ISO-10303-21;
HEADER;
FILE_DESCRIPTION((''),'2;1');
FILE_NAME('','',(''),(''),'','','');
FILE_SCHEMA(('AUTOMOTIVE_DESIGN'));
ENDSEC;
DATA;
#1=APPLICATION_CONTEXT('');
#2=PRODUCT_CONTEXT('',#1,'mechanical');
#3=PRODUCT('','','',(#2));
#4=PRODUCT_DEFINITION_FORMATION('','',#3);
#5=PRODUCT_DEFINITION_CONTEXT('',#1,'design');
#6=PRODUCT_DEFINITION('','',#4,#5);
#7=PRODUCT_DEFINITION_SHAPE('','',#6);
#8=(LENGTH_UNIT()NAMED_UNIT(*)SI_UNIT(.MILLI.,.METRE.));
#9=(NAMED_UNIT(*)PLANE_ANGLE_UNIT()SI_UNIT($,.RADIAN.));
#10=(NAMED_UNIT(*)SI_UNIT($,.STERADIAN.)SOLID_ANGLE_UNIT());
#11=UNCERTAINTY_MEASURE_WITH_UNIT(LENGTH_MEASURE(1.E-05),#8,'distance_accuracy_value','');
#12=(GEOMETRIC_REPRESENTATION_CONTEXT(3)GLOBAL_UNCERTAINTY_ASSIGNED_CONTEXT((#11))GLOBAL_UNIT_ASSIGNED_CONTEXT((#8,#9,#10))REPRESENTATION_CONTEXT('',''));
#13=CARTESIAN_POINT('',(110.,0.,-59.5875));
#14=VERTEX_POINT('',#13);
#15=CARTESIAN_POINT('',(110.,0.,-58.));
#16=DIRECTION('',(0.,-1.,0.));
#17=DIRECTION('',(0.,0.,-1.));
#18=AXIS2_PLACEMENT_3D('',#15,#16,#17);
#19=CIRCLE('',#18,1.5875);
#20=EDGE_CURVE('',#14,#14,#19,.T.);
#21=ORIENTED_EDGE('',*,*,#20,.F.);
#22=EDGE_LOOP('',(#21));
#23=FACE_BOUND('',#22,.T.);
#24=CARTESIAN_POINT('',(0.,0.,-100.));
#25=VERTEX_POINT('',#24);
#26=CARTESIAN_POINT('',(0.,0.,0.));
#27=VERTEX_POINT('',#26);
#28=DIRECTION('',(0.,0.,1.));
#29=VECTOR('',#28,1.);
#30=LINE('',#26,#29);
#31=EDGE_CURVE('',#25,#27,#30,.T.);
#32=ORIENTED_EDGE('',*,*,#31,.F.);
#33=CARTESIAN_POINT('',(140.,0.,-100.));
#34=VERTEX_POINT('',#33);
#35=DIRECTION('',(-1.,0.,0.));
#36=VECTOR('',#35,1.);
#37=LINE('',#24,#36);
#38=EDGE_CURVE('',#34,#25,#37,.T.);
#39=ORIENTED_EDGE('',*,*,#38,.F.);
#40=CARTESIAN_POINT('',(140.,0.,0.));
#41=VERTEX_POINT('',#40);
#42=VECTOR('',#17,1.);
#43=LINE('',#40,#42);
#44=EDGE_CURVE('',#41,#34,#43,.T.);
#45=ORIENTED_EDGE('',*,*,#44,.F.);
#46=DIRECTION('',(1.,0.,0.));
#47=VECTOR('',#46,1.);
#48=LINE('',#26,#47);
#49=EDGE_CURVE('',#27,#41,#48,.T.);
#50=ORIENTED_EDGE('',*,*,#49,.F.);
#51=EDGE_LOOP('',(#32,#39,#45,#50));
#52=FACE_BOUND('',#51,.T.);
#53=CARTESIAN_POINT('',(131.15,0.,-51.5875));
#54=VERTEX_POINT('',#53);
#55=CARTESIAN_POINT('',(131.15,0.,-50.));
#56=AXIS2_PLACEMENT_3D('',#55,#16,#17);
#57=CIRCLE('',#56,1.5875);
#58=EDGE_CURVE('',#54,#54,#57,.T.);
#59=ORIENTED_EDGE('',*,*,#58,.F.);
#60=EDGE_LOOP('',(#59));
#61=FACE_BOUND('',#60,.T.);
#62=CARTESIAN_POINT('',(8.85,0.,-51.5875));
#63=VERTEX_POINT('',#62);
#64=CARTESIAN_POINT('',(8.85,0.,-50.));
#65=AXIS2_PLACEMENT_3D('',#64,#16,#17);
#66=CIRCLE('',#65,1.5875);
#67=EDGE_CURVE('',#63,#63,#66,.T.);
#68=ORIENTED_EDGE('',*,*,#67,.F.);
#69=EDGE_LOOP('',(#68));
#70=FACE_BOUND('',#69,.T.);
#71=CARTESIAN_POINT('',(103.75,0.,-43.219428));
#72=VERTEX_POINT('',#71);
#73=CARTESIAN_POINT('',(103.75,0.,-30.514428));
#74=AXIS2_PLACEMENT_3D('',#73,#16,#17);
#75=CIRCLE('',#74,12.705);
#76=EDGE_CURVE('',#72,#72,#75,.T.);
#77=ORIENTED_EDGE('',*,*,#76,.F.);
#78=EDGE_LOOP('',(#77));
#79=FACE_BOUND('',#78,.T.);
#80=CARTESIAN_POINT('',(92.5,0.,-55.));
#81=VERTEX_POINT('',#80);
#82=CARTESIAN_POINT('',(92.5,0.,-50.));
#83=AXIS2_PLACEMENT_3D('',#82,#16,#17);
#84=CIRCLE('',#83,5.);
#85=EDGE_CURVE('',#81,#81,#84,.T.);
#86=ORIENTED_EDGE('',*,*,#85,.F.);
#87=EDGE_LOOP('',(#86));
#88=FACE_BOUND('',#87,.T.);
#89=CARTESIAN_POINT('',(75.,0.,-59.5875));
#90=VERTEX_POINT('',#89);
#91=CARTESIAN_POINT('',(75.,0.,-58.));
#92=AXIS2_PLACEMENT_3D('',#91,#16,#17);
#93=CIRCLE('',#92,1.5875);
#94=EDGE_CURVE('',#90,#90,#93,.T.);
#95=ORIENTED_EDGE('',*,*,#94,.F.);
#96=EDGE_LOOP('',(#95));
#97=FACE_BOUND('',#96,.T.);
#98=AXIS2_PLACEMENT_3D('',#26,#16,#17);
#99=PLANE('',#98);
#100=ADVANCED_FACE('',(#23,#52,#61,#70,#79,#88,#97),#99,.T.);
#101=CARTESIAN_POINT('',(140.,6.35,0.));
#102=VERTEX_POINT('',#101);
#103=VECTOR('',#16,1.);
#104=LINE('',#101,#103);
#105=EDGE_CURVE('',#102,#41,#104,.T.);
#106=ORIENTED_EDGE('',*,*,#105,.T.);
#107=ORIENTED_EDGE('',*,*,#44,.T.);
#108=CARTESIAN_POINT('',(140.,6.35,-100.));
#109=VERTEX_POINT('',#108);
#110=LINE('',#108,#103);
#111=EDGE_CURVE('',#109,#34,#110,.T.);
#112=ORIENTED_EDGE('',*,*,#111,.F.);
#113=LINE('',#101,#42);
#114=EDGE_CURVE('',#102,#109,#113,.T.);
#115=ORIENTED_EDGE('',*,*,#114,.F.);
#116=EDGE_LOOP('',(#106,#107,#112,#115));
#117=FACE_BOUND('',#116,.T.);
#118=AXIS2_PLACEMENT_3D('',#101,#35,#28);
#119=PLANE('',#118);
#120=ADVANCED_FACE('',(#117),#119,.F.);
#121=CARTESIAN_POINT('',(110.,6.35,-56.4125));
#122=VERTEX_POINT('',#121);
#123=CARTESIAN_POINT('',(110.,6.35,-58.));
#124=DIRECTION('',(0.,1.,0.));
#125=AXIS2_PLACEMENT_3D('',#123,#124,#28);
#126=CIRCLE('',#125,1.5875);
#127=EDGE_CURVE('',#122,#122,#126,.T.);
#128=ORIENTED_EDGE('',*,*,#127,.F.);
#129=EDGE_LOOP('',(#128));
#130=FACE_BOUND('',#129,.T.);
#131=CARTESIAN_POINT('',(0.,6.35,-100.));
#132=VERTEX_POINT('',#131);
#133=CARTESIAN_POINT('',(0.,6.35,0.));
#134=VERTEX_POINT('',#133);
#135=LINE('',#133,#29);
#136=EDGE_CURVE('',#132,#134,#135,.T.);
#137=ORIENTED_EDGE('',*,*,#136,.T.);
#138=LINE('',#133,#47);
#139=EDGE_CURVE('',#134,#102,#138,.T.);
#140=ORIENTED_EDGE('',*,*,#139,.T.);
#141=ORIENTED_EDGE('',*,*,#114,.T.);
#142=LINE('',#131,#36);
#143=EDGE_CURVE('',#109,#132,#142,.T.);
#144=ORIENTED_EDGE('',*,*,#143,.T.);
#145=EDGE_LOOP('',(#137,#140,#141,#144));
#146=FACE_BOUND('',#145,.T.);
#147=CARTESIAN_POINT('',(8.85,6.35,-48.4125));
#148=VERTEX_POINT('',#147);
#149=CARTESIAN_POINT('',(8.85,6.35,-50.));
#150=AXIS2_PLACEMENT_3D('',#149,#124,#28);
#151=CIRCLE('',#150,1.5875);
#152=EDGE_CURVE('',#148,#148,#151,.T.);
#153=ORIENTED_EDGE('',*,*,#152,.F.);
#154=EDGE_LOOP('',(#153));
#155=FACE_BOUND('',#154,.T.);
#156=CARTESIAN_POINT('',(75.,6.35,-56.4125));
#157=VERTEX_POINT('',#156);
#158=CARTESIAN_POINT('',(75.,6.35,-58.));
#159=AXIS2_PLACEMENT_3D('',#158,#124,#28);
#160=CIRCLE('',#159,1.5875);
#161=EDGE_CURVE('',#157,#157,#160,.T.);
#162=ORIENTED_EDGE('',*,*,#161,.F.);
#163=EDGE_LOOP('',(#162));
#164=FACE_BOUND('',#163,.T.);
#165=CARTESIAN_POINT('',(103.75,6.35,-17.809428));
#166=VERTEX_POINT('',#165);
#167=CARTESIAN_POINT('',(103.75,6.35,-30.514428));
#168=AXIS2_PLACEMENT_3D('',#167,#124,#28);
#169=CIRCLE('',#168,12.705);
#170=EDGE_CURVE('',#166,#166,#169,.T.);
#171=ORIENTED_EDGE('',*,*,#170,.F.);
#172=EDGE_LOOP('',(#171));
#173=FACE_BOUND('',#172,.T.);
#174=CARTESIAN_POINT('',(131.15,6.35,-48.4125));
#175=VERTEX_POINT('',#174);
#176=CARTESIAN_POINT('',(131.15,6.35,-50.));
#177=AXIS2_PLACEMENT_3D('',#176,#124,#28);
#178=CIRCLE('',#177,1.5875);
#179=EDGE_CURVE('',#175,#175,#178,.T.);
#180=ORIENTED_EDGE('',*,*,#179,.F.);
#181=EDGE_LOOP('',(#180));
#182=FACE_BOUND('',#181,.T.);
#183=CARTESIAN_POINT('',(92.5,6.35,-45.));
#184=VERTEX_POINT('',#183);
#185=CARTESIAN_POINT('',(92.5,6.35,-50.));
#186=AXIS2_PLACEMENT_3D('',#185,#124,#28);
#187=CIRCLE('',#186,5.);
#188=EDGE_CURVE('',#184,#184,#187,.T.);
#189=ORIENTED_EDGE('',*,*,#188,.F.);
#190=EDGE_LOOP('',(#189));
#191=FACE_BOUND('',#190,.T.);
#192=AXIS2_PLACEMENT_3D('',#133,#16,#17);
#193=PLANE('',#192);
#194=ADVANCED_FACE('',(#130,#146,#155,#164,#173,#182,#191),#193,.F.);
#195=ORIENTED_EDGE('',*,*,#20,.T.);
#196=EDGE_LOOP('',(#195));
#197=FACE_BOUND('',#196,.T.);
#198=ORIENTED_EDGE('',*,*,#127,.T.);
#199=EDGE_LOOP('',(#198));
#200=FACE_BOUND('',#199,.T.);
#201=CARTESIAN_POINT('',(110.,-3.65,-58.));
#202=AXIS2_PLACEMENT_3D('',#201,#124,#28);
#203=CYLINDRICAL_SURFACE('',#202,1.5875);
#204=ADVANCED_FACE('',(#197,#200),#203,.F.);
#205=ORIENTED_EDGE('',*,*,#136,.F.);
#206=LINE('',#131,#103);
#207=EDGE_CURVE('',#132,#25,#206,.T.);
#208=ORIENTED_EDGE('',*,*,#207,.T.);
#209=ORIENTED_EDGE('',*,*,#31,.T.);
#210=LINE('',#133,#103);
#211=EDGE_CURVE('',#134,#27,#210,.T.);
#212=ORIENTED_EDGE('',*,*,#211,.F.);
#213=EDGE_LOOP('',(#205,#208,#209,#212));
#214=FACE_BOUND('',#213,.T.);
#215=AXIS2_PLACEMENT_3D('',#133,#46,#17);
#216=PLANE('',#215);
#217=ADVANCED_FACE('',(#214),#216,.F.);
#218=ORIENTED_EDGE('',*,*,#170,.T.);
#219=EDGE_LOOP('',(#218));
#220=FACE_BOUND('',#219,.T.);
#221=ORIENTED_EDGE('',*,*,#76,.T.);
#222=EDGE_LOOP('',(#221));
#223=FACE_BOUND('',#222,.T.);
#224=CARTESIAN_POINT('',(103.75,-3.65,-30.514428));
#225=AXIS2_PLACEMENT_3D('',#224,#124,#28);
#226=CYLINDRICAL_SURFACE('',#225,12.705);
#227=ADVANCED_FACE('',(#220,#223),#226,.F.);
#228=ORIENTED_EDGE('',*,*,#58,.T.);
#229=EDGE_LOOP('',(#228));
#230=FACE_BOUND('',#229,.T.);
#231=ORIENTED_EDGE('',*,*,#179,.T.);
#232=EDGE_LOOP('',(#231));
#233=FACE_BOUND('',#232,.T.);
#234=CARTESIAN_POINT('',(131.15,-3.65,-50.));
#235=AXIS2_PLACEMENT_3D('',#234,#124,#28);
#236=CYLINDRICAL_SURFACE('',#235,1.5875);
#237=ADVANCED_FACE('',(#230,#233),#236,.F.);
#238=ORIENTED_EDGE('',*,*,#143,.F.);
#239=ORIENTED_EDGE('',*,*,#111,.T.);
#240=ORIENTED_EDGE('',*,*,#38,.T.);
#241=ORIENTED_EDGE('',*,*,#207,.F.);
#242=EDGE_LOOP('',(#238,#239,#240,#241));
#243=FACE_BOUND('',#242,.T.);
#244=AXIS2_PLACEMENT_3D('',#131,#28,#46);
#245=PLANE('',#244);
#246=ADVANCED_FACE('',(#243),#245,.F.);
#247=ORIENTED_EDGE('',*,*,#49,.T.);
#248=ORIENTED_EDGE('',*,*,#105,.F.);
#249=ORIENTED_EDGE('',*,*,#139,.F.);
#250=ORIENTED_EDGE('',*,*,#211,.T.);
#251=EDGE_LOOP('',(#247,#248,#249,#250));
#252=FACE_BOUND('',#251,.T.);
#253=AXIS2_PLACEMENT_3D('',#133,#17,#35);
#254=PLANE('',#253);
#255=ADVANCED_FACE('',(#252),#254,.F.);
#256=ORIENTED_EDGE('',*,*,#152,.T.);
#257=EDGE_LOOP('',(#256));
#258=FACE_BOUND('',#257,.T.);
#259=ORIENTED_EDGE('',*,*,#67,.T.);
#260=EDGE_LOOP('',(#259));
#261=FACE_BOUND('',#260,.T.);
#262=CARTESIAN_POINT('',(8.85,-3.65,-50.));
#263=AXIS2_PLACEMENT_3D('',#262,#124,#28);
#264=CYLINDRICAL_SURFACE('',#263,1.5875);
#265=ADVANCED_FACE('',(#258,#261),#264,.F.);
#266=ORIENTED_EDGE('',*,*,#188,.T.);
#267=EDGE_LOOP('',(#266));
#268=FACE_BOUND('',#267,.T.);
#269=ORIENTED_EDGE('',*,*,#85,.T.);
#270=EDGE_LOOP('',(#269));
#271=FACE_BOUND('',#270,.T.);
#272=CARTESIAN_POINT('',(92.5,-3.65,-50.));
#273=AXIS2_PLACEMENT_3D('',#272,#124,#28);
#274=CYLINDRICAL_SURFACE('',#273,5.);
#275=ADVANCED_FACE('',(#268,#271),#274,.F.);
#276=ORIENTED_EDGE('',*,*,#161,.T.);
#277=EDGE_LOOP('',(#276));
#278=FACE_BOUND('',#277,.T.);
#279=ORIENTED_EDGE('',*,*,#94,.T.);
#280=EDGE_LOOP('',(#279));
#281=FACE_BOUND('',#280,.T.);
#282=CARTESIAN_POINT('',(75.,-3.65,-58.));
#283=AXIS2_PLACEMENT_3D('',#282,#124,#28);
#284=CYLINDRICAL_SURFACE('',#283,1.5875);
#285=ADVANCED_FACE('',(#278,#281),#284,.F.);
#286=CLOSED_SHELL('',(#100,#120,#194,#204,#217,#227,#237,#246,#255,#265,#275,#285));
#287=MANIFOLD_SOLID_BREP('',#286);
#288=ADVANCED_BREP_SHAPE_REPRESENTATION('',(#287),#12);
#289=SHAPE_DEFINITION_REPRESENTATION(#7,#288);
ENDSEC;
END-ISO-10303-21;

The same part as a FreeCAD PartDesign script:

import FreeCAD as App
import Part
import Sketcher

V = App.Vector


def add_polygon(sketch, points):
    """Adds a closed chain of lines whose ends are joined by coincident constraints."""
    first, n = sketch.GeometryCount, len(points)
    for a, b in zip(points, points[1:] + points[:1]):
        sketch.addGeometry(Part.LineSegment(App.Vector(*a, 0), App.Vector(*b, 0)), False)
    for i in range(n):
        sketch.addConstraint(Sketcher.Constraint("Coincident", first + i, 2, first + (i + 1) % n, 1))

doc = App.newDocument("Part")
body = doc.addObject("PartDesign::Body", "Body")

sketch1 = body.newObject("Sketcher::SketchObject", "Sketch")
sketch1.AttachmentSupport = (doc.getObject("XZ_Plane"), [""])
sketch1.MapMode = "FlatFace"
add_polygon(sketch1, [(0, -100), (0, 0), (140, 0), (140, -100)])
sketch1.addConstraint([
    Sketcher.Constraint("Vertical", 0),
    Sketcher.Constraint("Horizontal", 1),
    Sketcher.Constraint("Vertical", 2),
    Sketcher.Constraint("Horizontal", 3),
    Sketcher.Constraint("Coincident", 0, 2, -1, 1),
    Sketcher.Constraint("DistanceX", 1, 1, 1, 2, 140.0),
    Sketcher.Constraint("DistanceY", 0, 1, 0, 2, 100.0),
])
pad1 = body.newObject("PartDesign::Pad", "Pad")
pad1.Profile = sketch1
pad1.Length = 6.35
pad1.Reversed = True

sketch2 = body.newObject("Sketcher::SketchObject", "Sketch001")
sketch2.AttachmentSupport = (doc.getObject("XZ_Plane"), [""])
sketch2.MapMode = "FlatFace"
sketch2.AttachmentOffset = App.Placement(V(0, 0, -6.35), App.Rotation())
sketch2.addGeometry([
    Part.Circle(V(104, -31, 0), V(0, 0, 1), 13),
    Part.Circle(V(92, -50, 0), V(0, 0, 1), 5),
], False)
sketch2.addConstraint([
    Sketcher.Constraint("Diameter", 1, 10.0),
    Sketcher.Constraint("Diameter", 0, 25.41),
    Sketcher.Constraint("DistanceY", 1, 3, -1, 1, 50.0),
    Sketcher.Constraint("DistanceX", -1, 1, 1, 3, 92.5),
    Sketcher.Constraint("DistanceX", -1, 1, 0, 3, 103.75),
    Sketcher.Constraint("DistanceY", 0, 3, -1, 1, 30.514428),
])
pocket1 = body.newObject("PartDesign::Pocket", "Pocket")
pocket1.Profile = sketch2
pocket1.Length = 10
pocket1.Reversed = True

sketch3 = body.newObject("Sketcher::SketchObject", "Sketch002")
sketch3.AttachmentSupport = (doc.getObject("XZ_Plane"), [""])
sketch3.MapMode = "FlatFace"
sketch3.AttachmentOffset = App.Placement(V(0, 0, -6.35), App.Rotation())
sketch3.addGeometry([
    Part.Circle(V(8.8, -50, 0), V(0, 0, 1), 1.6),
    Part.Circle(V(131.2, -50, 0), V(0, 0, 1), 1.6),
    Part.Circle(V(75, -58, 0), V(0, 0, 1), 1.6),
    Part.Circle(V(110, -58, 0), V(0, 0, 1), 1.6),
], False)
sketch3.addConstraint([
    Sketcher.Constraint("Equal", 0, 1),
    Sketcher.Constraint("Equal", 1, 2),
    Sketcher.Constraint("Equal", 2, 3),
    Sketcher.Constraint("Horizontal", 0, 3, 1, 3),
    Sketcher.Constraint("Horizontal", 2, 3, 3, 3),
    Sketcher.Constraint("Diameter", 0, 3.175),
    Sketcher.Constraint("DistanceY", 0, 3, -1, 1, 50.0),
    Sketcher.Constraint("DistanceX", -1, 1, 2, 3, 75.0),
    Sketcher.Constraint("DistanceY", 2, 3, -1, 1, 58.0),
    Sketcher.Constraint("DistanceX", -1, 1, 3, 3, 110.0),
    Sketcher.Constraint("DistanceX", 0, 3, 1, 3, 122.3),
    Sketcher.Constraint("DistanceX", -1, 1, 0, 3, 8.85),
])
pocket2 = body.newObject("PartDesign::Pocket", "Pocket001")
pocket2.Profile = sketch3
pocket2.Length = 10
pocket2.Reversed = True

doc.recompute()
